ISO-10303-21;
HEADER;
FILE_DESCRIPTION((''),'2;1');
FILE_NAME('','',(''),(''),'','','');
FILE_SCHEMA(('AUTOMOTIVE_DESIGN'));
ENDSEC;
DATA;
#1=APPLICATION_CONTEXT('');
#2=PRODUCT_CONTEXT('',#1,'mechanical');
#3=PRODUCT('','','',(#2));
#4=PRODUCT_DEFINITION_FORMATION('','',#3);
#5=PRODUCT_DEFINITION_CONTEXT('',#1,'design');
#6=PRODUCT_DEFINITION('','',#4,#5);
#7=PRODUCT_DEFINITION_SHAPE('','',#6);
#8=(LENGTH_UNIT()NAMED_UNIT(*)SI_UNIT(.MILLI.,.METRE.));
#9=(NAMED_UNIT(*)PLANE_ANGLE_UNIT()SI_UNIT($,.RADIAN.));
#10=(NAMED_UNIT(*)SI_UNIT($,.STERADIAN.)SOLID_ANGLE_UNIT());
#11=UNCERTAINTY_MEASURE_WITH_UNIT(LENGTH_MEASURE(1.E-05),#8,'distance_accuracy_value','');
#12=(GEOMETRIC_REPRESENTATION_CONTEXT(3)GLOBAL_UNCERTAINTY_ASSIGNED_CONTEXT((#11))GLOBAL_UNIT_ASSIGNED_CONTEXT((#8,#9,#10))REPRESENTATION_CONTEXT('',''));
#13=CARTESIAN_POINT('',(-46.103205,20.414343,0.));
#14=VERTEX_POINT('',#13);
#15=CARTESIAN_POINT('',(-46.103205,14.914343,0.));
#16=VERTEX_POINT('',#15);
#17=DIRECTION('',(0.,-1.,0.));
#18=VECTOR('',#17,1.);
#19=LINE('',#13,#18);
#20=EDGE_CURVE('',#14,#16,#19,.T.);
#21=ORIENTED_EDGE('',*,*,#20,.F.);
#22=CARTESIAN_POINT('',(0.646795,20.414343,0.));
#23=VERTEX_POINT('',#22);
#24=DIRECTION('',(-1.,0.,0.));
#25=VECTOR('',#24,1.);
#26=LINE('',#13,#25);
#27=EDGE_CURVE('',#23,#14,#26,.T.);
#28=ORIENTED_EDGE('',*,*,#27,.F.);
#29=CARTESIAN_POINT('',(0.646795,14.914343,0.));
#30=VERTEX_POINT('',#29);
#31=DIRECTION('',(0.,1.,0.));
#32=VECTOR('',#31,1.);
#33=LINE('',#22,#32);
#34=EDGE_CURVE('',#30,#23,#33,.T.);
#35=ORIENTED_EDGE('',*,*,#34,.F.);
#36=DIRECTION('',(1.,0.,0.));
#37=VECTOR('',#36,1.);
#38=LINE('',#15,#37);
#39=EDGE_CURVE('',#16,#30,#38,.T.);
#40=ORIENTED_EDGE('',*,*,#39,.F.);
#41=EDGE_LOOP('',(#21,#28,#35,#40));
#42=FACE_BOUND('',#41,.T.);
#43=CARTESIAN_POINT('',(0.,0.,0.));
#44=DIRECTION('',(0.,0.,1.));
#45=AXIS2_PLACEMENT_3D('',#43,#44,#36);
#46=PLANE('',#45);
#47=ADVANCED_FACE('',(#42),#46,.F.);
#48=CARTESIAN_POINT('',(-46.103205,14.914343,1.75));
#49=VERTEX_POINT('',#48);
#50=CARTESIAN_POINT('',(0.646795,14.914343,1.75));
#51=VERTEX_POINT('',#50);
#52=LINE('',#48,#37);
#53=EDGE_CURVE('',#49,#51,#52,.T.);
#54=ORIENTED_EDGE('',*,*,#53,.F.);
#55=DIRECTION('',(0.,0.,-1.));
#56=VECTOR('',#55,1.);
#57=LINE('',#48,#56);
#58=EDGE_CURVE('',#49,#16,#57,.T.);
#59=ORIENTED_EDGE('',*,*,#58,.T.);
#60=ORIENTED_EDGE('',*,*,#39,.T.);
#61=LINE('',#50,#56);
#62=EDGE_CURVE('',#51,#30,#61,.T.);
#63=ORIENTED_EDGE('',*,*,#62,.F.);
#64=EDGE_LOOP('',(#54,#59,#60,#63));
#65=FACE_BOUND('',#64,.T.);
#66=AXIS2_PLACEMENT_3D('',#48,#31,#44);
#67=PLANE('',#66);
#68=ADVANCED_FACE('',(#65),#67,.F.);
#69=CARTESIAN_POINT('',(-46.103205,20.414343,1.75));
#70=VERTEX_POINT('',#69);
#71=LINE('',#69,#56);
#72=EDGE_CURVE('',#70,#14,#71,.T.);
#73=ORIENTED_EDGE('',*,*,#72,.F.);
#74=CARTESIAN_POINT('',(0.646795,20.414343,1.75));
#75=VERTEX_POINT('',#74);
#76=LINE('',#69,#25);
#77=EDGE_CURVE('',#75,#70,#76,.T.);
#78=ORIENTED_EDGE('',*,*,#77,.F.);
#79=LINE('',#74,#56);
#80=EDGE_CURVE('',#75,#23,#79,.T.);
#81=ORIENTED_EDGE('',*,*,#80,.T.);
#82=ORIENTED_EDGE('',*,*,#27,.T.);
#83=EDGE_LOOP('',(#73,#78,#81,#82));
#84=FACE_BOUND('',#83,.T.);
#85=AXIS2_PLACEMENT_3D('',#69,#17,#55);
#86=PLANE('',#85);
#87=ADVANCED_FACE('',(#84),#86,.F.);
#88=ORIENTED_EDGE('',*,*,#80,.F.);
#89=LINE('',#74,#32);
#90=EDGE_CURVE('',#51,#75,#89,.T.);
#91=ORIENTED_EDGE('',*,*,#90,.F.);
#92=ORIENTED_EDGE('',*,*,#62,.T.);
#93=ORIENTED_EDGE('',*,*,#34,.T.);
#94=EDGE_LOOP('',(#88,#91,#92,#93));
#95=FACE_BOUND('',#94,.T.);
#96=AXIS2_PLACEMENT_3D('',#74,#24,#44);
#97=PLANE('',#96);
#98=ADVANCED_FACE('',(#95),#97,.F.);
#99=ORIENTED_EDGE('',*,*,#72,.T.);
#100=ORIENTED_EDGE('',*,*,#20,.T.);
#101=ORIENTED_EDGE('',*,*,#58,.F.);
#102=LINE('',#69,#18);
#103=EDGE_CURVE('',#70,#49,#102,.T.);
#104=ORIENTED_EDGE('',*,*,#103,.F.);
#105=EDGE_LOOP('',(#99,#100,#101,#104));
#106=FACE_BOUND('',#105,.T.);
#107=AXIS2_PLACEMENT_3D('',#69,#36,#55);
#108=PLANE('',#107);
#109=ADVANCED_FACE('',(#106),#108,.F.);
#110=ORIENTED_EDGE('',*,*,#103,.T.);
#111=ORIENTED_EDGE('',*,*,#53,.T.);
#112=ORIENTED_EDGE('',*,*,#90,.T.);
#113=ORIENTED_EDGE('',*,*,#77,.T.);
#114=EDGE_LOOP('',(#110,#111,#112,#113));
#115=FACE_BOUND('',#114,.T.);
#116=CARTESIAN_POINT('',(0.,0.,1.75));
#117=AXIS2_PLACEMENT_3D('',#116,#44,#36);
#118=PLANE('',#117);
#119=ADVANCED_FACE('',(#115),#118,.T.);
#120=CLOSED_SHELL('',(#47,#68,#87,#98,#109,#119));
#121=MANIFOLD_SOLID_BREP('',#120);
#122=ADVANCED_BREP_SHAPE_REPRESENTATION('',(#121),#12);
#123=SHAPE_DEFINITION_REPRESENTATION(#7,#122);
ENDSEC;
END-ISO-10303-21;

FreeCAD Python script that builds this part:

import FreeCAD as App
import Part
import Sketcher
Q = App.Units.Quantity

doc = App.newDocument("Part")
params = doc.addObject("Spreadsheet::Sheet", "Params")
for row, (alias, value) in enumerate([
    ("sketch1_height", "5.5 mm"),
    ("sketch1_width", "46.75 mm"),
    ("pad1_length", "1.75 mm"),
], start=1):
    params.set(f"A{row}", alias)
    params.set(f"B{row}", "=" + value)
    params.setAlias(f"B{row}", alias)

body = doc.addObject("PartDesign::Body", "Body")

# Sketch on XY plane
sketch1 = body.newObject("Sketcher::SketchObject", "Sketch")
sketch1.AttachmentSupport = (doc.getObject("XY_Plane"), [""])
sketch1.MapMode = "FlatFace"
sketch1.addGeometry([
    Part.LineSegment(App.Vector(-46, 20, 0), App.Vector(-46, 15, 0)),
    Part.LineSegment(App.Vector(-46, 15, 0), App.Vector(1, 15, 0)),
    Part.LineSegment(App.Vector(1, 15, 0), App.Vector(1, 20, 0)),
    Part.LineSegment(App.Vector(1, 20, 0), App.Vector(-46, 20, 0)),
], False)
sketch1.addConstraint([
    Sketcher.Constraint("Coincident", 0, 2, 1, 1),
    Sketcher.Constraint("Coincident", 1, 2, 2, 1),
    Sketcher.Constraint("Coincident", 2, 2, 3, 1),
    Sketcher.Constraint("Coincident", 3, 2, 0, 1),
    Sketcher.Constraint("Vertical", 0),
    Sketcher.Constraint("Horizontal", 1),
    Sketcher.Constraint("Vertical", 2),
    Sketcher.Constraint("Horizontal", 3),
    Sketcher.Constraint("DistanceY", 0, 2, 0, 1, Q("5.5 mm")),
    Sketcher.Constraint("DistanceX", 1, 1, 1, 2, Q("46.75 mm")),
    Sketcher.Constraint("DistanceX", 0, 2, -1, 1, Q("46.103205 mm")),
    Sketcher.Constraint("DistanceY", -1, 1, 0, 2, Q("14.914343 mm")),
])
sketch1.setExpression("Constraints[8]", "Params.sketch1_height")
sketch1.setExpression("Constraints[9]", "Params.sketch1_width")
pad1 = body.newObject("PartDesign::Pad", "Pad")
pad1.Profile = sketch1
pad1.setExpression("Length", "Params.pad1_length")

doc.recompute()
